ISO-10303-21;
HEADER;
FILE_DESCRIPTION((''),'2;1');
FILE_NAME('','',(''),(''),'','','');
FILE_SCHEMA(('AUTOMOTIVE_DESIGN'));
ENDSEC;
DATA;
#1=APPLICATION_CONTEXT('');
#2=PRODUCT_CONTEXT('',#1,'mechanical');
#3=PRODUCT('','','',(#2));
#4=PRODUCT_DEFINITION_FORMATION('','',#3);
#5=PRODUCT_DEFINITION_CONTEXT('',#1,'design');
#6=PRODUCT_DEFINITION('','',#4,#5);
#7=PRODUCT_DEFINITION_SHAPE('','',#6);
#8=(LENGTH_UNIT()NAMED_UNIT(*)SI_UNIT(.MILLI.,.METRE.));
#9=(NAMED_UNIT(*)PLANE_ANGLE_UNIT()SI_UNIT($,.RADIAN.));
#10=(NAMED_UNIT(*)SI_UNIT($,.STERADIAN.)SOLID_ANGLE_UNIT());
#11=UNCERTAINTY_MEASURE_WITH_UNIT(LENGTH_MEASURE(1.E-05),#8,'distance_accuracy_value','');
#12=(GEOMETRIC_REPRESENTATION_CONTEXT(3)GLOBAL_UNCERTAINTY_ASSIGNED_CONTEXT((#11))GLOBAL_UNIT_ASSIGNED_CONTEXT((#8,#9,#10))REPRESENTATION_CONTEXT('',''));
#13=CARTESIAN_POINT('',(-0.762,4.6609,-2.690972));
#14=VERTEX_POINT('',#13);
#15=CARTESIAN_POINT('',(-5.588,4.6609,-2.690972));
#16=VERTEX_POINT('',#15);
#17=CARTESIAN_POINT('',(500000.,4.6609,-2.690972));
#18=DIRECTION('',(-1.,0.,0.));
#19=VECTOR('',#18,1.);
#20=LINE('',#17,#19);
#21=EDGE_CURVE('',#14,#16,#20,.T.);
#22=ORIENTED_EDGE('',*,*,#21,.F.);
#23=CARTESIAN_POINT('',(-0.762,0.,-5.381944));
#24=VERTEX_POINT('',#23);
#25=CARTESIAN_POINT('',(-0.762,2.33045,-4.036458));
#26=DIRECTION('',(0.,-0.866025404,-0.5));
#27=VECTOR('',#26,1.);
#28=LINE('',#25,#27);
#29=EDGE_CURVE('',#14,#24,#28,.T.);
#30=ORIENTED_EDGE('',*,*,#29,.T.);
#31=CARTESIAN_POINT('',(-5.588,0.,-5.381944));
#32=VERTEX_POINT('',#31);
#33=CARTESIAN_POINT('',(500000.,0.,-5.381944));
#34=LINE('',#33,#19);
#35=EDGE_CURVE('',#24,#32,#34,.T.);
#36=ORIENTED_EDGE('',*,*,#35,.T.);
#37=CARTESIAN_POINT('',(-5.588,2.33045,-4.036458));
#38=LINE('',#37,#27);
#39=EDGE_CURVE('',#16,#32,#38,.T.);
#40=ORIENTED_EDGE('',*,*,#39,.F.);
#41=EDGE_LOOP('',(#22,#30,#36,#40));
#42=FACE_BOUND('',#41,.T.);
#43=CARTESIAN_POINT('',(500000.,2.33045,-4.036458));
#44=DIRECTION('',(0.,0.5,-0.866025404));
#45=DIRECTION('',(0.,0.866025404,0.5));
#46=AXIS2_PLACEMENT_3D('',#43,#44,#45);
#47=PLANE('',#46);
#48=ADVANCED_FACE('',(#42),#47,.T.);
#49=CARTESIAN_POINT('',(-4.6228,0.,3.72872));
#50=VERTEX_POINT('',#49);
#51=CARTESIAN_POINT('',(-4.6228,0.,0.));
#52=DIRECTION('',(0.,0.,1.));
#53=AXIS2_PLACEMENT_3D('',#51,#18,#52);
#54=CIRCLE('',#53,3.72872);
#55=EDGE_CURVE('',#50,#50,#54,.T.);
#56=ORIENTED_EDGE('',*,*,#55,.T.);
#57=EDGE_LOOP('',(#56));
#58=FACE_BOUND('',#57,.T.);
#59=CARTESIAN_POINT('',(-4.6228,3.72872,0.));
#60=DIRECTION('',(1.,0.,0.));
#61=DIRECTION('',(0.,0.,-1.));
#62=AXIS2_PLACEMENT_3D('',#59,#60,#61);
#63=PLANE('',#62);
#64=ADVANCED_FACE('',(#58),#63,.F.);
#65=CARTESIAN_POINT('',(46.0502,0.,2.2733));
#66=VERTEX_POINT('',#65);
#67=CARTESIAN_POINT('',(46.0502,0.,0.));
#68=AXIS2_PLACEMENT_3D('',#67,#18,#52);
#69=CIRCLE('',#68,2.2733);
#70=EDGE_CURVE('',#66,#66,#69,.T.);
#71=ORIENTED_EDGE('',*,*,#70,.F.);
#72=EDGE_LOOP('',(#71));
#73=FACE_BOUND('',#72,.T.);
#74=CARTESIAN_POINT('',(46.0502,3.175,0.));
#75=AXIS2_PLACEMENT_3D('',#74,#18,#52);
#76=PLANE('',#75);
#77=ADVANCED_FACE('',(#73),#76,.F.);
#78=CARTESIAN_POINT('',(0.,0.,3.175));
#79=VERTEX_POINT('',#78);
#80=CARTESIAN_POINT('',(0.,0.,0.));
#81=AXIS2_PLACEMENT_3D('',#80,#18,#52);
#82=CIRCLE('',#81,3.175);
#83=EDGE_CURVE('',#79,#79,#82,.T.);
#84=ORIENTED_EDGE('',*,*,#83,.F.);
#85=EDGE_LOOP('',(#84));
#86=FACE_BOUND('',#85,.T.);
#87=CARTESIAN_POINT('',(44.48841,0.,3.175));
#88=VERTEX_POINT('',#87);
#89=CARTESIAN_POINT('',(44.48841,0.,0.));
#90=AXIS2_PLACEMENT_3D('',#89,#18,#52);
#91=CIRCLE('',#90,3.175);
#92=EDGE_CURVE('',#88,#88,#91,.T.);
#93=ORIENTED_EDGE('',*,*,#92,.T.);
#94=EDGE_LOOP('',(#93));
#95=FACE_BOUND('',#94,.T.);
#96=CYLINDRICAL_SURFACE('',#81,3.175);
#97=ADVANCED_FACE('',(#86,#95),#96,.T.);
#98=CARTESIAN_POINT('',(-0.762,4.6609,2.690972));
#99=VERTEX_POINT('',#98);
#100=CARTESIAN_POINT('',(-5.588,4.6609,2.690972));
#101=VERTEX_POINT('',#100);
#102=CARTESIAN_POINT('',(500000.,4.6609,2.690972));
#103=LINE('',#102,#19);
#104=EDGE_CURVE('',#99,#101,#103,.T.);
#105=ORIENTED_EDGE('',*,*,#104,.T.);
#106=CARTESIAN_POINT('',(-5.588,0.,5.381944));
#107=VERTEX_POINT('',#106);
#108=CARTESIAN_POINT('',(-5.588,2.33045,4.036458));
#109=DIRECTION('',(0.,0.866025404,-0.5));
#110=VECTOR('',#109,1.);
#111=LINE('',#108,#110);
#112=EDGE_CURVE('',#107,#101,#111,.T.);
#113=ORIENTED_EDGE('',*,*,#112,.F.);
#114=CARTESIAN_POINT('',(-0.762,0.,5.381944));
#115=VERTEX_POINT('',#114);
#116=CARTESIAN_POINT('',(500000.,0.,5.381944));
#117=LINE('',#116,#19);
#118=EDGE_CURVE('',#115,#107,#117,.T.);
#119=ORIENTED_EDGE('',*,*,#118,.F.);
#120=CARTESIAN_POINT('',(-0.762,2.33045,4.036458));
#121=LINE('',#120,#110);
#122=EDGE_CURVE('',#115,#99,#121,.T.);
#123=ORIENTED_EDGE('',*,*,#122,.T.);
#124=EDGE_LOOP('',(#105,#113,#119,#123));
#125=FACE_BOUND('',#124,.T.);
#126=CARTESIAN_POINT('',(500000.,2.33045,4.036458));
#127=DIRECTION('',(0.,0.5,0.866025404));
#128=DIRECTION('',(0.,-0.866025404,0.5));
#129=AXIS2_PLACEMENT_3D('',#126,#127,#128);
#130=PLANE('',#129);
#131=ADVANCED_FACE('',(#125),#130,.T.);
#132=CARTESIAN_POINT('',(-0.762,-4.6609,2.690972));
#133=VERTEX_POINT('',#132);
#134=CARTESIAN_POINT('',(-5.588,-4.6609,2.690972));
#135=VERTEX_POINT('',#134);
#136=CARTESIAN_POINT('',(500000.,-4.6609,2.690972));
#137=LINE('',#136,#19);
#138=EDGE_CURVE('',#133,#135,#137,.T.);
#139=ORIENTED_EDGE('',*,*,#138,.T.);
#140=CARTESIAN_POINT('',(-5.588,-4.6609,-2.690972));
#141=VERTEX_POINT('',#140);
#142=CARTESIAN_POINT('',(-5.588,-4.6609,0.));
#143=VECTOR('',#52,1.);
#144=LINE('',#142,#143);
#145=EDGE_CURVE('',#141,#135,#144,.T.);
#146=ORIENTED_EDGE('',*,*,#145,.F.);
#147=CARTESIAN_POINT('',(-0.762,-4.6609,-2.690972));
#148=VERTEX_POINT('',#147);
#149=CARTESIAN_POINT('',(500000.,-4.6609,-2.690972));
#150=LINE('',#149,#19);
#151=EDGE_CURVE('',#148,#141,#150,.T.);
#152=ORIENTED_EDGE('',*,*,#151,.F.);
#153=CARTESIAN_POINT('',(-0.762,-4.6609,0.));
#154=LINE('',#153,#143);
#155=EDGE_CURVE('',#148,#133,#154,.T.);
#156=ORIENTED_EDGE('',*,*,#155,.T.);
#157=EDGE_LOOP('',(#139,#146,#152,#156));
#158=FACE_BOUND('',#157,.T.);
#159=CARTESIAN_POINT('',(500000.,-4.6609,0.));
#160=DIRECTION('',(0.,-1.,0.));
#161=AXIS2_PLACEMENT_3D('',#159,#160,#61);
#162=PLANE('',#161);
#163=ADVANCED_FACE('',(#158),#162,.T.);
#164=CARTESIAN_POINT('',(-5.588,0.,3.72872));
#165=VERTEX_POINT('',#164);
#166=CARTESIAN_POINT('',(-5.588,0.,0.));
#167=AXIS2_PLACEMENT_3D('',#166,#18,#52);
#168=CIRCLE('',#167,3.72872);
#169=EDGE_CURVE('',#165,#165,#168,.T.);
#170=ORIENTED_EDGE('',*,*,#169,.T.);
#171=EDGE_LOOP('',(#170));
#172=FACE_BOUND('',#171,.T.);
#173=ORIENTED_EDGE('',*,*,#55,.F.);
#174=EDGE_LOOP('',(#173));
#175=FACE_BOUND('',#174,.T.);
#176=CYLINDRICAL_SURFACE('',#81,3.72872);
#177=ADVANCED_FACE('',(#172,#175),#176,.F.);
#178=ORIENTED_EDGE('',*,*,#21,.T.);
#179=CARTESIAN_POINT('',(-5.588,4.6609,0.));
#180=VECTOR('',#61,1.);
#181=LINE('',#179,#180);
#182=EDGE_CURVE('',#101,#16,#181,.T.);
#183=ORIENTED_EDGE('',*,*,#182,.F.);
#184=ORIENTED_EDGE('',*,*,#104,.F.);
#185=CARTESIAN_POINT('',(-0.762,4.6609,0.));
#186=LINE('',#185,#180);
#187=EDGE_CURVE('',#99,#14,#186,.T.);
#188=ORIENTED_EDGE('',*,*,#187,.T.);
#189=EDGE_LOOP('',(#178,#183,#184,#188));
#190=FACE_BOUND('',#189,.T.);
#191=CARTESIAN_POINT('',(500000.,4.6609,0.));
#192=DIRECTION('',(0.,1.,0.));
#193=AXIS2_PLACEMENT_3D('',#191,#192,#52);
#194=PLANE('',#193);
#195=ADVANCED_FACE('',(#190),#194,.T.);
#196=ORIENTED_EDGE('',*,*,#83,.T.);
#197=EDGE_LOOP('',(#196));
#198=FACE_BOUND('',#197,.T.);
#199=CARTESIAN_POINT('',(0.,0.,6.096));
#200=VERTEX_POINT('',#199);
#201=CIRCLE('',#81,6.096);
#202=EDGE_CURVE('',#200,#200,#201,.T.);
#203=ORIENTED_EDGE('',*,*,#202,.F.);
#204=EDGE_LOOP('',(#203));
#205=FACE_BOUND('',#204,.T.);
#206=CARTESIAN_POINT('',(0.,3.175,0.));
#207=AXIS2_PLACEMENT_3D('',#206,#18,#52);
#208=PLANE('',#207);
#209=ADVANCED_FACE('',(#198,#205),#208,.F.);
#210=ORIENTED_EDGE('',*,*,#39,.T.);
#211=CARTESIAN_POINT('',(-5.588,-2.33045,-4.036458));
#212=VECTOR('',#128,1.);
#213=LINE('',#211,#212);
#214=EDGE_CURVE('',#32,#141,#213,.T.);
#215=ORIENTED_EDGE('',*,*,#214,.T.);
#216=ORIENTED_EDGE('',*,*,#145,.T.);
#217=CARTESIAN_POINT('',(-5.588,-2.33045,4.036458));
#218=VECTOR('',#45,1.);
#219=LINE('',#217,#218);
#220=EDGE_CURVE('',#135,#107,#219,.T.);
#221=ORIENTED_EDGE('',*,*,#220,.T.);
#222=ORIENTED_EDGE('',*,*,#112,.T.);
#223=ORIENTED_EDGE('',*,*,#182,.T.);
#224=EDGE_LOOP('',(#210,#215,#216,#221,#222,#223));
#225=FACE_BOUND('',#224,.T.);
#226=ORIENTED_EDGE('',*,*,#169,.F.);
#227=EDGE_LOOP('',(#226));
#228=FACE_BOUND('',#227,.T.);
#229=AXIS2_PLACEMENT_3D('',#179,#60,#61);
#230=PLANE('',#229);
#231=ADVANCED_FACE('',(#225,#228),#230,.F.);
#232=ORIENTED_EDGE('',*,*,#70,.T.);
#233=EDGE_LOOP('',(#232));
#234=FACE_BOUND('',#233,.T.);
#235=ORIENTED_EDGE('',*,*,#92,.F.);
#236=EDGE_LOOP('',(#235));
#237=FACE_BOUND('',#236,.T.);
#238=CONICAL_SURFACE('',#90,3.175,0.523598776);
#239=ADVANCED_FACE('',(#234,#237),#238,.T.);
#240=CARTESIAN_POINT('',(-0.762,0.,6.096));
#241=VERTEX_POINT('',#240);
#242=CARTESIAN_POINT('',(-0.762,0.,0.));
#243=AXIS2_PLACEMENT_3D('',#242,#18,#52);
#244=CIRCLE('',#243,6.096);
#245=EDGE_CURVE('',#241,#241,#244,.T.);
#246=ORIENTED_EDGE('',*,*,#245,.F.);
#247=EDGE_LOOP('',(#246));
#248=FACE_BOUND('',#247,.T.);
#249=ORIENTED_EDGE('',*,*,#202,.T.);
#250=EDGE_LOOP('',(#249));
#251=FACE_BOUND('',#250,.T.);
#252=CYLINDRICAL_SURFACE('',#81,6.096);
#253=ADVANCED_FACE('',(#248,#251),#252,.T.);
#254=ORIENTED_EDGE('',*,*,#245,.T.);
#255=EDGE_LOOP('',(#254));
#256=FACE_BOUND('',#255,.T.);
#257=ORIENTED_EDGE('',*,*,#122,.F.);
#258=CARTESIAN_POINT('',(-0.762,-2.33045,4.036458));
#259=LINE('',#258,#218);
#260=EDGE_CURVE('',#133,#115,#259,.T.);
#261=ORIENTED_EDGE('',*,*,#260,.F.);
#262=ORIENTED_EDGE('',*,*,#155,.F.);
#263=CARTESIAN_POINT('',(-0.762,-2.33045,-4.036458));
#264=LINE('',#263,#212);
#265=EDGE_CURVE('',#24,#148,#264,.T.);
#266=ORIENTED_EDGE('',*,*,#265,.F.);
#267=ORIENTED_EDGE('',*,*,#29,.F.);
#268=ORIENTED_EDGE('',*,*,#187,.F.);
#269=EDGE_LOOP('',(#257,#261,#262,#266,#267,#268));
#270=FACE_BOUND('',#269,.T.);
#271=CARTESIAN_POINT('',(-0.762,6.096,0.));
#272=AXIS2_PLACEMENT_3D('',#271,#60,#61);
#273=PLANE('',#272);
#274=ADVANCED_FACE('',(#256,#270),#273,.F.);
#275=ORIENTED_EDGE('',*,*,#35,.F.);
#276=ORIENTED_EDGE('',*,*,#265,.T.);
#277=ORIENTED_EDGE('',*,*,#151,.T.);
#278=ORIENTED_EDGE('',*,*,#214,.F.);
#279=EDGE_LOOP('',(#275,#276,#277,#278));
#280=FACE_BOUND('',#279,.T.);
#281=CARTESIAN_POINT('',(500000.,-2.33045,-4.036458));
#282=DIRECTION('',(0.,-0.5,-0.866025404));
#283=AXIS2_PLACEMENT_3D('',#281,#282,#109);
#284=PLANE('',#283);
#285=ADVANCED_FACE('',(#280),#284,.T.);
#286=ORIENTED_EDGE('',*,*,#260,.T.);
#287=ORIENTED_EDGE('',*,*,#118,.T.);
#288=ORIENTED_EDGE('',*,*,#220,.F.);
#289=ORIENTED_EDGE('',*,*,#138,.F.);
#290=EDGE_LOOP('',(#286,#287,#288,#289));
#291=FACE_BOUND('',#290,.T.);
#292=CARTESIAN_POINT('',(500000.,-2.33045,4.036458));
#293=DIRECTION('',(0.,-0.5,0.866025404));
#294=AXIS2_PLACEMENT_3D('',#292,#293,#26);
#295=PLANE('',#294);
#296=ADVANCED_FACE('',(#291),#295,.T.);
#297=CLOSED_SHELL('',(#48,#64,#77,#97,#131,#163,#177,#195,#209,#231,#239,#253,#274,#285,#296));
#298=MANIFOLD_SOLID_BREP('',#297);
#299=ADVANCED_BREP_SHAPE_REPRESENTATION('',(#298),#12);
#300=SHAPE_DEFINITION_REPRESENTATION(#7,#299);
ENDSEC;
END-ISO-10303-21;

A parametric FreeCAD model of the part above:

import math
import FreeCAD as App
import Part
import Sketcher
Q = App.Units.Quantity


def add_polygon(sketch, points):
    """Adds a closed chain of lines whose ends are joined by coincident constraints."""
    first, n = sketch.GeometryCount, len(points)
    for a, b in zip(points, points[1:] + points[:1]):
        sketch.addGeometry(Part.LineSegment(App.Vector(*a, 0), App.Vector(*b, 0)), False)
    for i in range(n):
        sketch.addConstraint(Sketcher.Constraint("Coincident", first + i, 2, first + (i + 1) % n, 1))

doc = App.newDocument("Part")
body = doc.addObject("PartDesign::Body", "Body")

sketch1 = body.newObject("Sketcher::SketchObject", "Sketch")
sketch1.AttachmentSupport = (doc.getObject("XY_Plane"), [""])
sketch1.MapMode = "FlatFace"
add_polygon(sketch1, [(0, 6.1), (-0.8, 6.1), (-0.8, 4.7), (-5.6, 4.7), (-5.6, 3.7), (-4.6, 3.7), (-4.6, 0), (46.1, 0), (46.1, 3.2), (0, 3.2)])
sketch1.addConstraint([
    Sketcher.Constraint("Horizontal", 0),
    Sketcher.Constraint("Vertical", 1),
    Sketcher.Constraint("Horizontal", 2),
    Sketcher.Constraint("Vertical", 3),
    Sketcher.Constraint("Horizontal", 4),
    Sketcher.Constraint("Vertical", 5),
    Sketcher.Constraint("Horizontal", 6),
    Sketcher.Constraint("Vertical", 7),
    Sketcher.Constraint("Horizontal", 8),
    Sketcher.Constraint("Vertical", 9),
    Sketcher.Constraint("PointOnObject", 5, 2, -1),
    Sketcher.Constraint("PointOnObject", 8, 2, -2),
    Sketcher.Constraint("DistanceX", 0, 2, 0, 1, Q("0.03 in")),
    Sketcher.Constraint("DistanceX", 2, 2, 2, 1, Q("0.19 in")),
    Sketcher.Constraint("DistanceX", 4, 1, 4, 2, Q("0.038 in")),
    Sketcher.Constraint("DistanceX", 6, 1, 6, 2, Q("1.995 in")),
    Sketcher.Constraint("DistanceY", 7, 1, 7, 2, Q("0.125 in")),
    Sketcher.Constraint("DistanceY", 9, 1, 9, 2, Q("0.115 in")),
    Sketcher.Constraint("DistanceY", 1, 2, 1, 1, Q("0.0565 in")),
    Sketcher.Constraint("DistanceY", 3, 2, 3, 1, Q("0.0367 in")),
])
revolution = body.newObject("PartDesign::Revolution", "Revolution")
revolution.Profile = sketch1
revolution.ReferenceAxis = (sketch1, ["H_Axis"])
revolution.Angle = 360

sketch2 = body.newObject("Sketcher::SketchObject", "Sketch001")
sketch2.AttachmentSupport = (doc.getObject("YZ_Plane"), [""])
sketch2.MapMode = "FlatFace"
sketch2.AttachmentOffset = App.Placement(App.Vector(0, 0, -0.22 * 25.4), App.Rotation())
sketch2.addGeometry([
    Part.ArcOfCircle(Part.Circle(App.Vector(0, 0, 0), App.Vector(0, 0, 1), 4.7), math.radians(-120), math.radians(-60)),
    Part.LineSegment(App.Vector(2.3, -4, 0), App.Vector(0, -5.4, 0)),
    Part.LineSegment(App.Vector(0, -5.4, 0), App.Vector(-2.3, -4, 0)),
], False)
sketch2.addConstraint([
    Sketcher.Constraint("Tangent", 0, 2, 1, 1),
    Sketcher.Constraint("Coincident", 1, 2, 2, 1),
    Sketcher.Constraint("Tangent", 2, 2, 0, 1),
    Sketcher.Constraint("Coincident", 0, 3, -1, 1),
    Sketcher.Constraint("PointOnObject", 1, 2, -2),
    Sketcher.Constraint("Angle", 1, Q("-150 deg")),
    Sketcher.Constraint("Radius", 0, Q("0.1835 in")),
])
pad1 = body.newObject("PartDesign::Pad", "Pad")
pad1.Profile = sketch2
pad1.Type = "UpToFirst"

sketch3 = body.newObject("Sketcher::SketchObject", "Sketch002")
sketch3.AttachmentSupport = (doc.getObject("YZ_Plane"), [""])
sketch3.MapMode = "FlatFace"
sketch3.AttachmentOffset = App.Placement(App.Vector(0, 0, -0.22 * 25.4), App.Rotation())
sketch3.addGeometry([
    Part.ArcOfCircle(Part.Circle(App.Vector(0, 0, 0), App.Vector(0, 0, 1), 4.7), math.radians(-60), math.radians(0)),
    Part.LineSegment(App.Vector(4.7, 0, 0), App.Vector(4.7, -2.7, 0)),
    Part.LineSegment(App.Vector(4.7, -2.7, 0), App.Vector(2.3, -4, 0)),
], False)
sketch3.addConstraint([
    Sketcher.Constraint("Tangent", 0, 2, 1, 1),
    Sketcher.Constraint("Coincident", 1, 2, 2, 1),
    Sketcher.Constraint("Tangent", 2, 2, 0, 1),
    Sketcher.Constraint("Vertical", 1),
    Sketcher.Constraint("Coincident", 0, 3, -1, 1),
    Sketcher.Constraint("Angle", 2, Q("-150 deg")),
    Sketcher.Constraint("Radius", 0, Q("0.1835 in")),
])
pad2 = body.newObject("PartDesign::Pad", "Pad001")
pad2.Profile = sketch3
pad2.Type = "UpToFirst"

sketch4 = body.newObject("Sketcher::SketchObject", "Sketch003")
sketch4.AttachmentSupport = (doc.getObject("YZ_Plane"), [""])
sketch4.MapMode = "FlatFace"
sketch4.AttachmentOffset = App.Placement(App.Vector(0, 0, -0.22 * 25.4), App.Rotation())
sketch4.addGeometry([
    Part.ArcOfCircle(Part.Circle(App.Vector(0, 0, 0), App.Vector(0, 0, 1), 4.7), math.radians(0), math.radians(60)),
    Part.LineSegment(App.Vector(2.3, 4, 0), App.Vector(4.7, 2.7, 0)),
    Part.LineSegment(App.Vector(4.7, 2.7, 0), App.Vector(4.7, 0, 0)),
], False)
sketch4.addConstraint([
    Sketcher.Constraint("Tangent", 0, 2, 1, 1),
    Sketcher.Constraint("Coincident", 1, 2, 2, 1),
    Sketcher.Constraint("Tangent", 2, 2, 0, 1),
    Sketcher.Constraint("Vertical", 2),
    Sketcher.Constraint("Coincident", 0, 3, -1, 1),
    Sketcher.Constraint("Angle", 1, Q("-30 deg")),
    Sketcher.Constraint("Radius", 0, Q("0.1835 in")),
])
pad3 = body.newObject("PartDesign::Pad", "Pad002")
pad3.Profile = sketch4
pad3.Type = "UpToFirst"

sketch5 = body.newObject("Sketcher::SketchObject", "Sketch004")
sketch5.AttachmentSupport = (doc.getObject("YZ_Plane"), [""])
sketch5.MapMode = "FlatFace"
sketch5.AttachmentOffset = App.Placement(App.Vector(0, 0, -0.22 * 25.4), App.Rotation())
sketch5.addGeometry([
    Part.LineSegment(App.Vector(-2.3, 4, 0), App.Vector(0, 5.4, 0)),
    Part.LineSegment(App.Vector(0, 5.4, 0), App.Vector(2.3, 4, 0)),
    Part.ArcOfCircle(Part.Circle(App.Vector(0, 0, 0), App.Vector(0, 0, 1), 4.7), math.radians(60), math.radians(90)),
    Part.ArcOfCircle(Part.Circle(App.Vector(0, 0, 0), App.Vector(0, 0, 1), 4.7), math.radians(90), math.radians(120)),
], False)
sketch5.addConstraint([
    Sketcher.Constraint("Coincident", 0, 2, 1, 1),
    Sketcher.Constraint("Tangent", 1, 2, 2, 1),
    Sketcher.Constraint("Tangent", 2, 2, 3, 1),
    Sketcher.Constraint("Tangent", 3, 2, 0, 1),
    Sketcher.Constraint("Coincident", 2, 3, -1, 1),
    Sketcher.Constraint("Equal", 2, 3),
    Sketcher.Constraint("PointOnObject", 0, 2, -2),
    Sketcher.Constraint("PointOnObject", 2, 2, -2),
    Sketcher.Constraint("Angle", 0, Q("30 deg")),
    Sketcher.Constraint("Radius", 2, Q("0.1835 in")),
])
pad4 = body.newObject("PartDesign::Pad", "Pad003")
pad4.Profile = sketch5
pad4.Type = "UpToFirst"

sketch6 = body.newObject("Sketcher::SketchObject", "Sketch005")
sketch6.AttachmentSupport = (doc.getObject("YZ_Plane"), [""])
sketch6.MapMode = "FlatFace"
sketch6.AttachmentOffset = App.Placement(App.Vector(0, 0, -0.22 * 25.4), App.Rotation())
sketch6.addGeometry([
    Part.LineSegment(App.Vector(-4.7, 2.7, 0), App.Vector(-2.3, 4, 0)),
    Part.ArcOfCircle(Part.Circle(App.Vector(0, 0, 0), App.Vector(0, 0, 1), 4.7), math.radians(120), math.radians(180)),
    Part.LineSegment(App.Vector(-4.7, 0, 0), App.Vector(-4.7, 2.7, 0)),
], False)
sketch6.addConstraint([
    Sketcher.Constraint("Tangent", 0, 2, 1, 1),
    Sketcher.Constraint("Tangent", 1, 2, 2, 1),
    Sketcher.Constraint("Coincident", 2, 2, 0, 1),
    Sketcher.Constraint("Vertical", 2),
    Sketcher.Constraint("Coincident", 1, 3, -1, 1),
    Sketcher.Constraint("Angle", 0, Q("30 deg")),
    Sketcher.Constraint("Radius", 1, Q("0.1835 in")),
])
pad5 = body.newObject("PartDesign::Pad", "Pad004")
pad5.Profile = sketch6
pad5.Type = "UpToFirst"

sketch7 = body.newObject("Sketcher::SketchObject", "Sketch006")
sketch7.AttachmentSupport = (doc.getObject("YZ_Plane"), [""])
sketch7.MapMode = "FlatFace"
sketch7.AttachmentOffset = App.Placement(App.Vector(0, 0, -0.22 * 25.4), App.Rotation())
sketch7.addGeometry([
    Part.LineSegment(App.Vector(-4.7, -2.7, 0), App.Vector(-4.7, 0, 0)),
    Part.ArcOfCircle(Part.Circle(App.Vector(0, 0, 0), App.Vector(0, 0, 1), 4.7), math.radians(180), math.radians(240)),
    Part.LineSegment(App.Vector(-2.3, -4, 0), App.Vector(-4.7, -2.7, 0)),
], False)
sketch7.addConstraint([
    Sketcher.Constraint("Tangent", 0, 2, 1, 1),
    Sketcher.Constraint("Tangent", 1, 2, 2, 1),
    Sketcher.Constraint("Coincident", 2, 2, 0, 1),
    Sketcher.Constraint("Vertical", 0),
    Sketcher.Constraint("Coincident", 1, 3, -1, 1),
    Sketcher.Constraint("Angle", 2, Q("150 deg")),
    Sketcher.Constraint("Radius", 1, Q("0.1835 in")),
])
pad6 = body.newObject("PartDesign::Pad", "Pad005")
pad6.Profile = sketch7
pad6.Type = "UpToFirst"

sketch8 = body.newObject("Sketcher::SketchObject", "Sketch007")
sketch8.AttachmentSupport = (doc.getObject("XY_Plane"), [""])
sketch8.MapMode = "FlatFace"
add_polygon(sketch8, [(46.1, 0), (46.6, 0), (46.6, 3.7), (44.5, 3.7), (44.5, 3.2), (46.1, 2.3)])
sketch8.addConstraint([
    Sketcher.Constraint("Horizontal", 0),
    Sketcher.Constraint("Vertical", 1),
    Sketcher.Constraint("Horizontal", 2),
    Sketcher.Constraint("Vertical", 3),
    Sketcher.Constraint("Vertical", 5),
    Sketcher.Constraint("PointOnObject", 0, 2, -1),
    Sketcher.Constraint("Equal", 0, 3),
    Sketcher.Constraint("Angle", 4, Q("-30 deg")),
    Sketcher.Constraint("DistanceX", 0, 1, 0, 2, Q("0.02 in")),
    Sketcher.Constraint("DistanceY", 1, 1, 1, 2, Q("0.145 in")),
    Sketcher.Constraint("Distance", 4, Q("0.071 in")),
    Sketcher.Constraint("DistanceX", -1, 1, 0, 2, Q("1.833 in")),
])
groove = body.newObject("PartDesign::Groove", "Groove")
groove.Profile = sketch8
groove.ReferenceAxis = (sketch8, ["H_Axis"])
groove.Angle = 360

doc.recompute()
